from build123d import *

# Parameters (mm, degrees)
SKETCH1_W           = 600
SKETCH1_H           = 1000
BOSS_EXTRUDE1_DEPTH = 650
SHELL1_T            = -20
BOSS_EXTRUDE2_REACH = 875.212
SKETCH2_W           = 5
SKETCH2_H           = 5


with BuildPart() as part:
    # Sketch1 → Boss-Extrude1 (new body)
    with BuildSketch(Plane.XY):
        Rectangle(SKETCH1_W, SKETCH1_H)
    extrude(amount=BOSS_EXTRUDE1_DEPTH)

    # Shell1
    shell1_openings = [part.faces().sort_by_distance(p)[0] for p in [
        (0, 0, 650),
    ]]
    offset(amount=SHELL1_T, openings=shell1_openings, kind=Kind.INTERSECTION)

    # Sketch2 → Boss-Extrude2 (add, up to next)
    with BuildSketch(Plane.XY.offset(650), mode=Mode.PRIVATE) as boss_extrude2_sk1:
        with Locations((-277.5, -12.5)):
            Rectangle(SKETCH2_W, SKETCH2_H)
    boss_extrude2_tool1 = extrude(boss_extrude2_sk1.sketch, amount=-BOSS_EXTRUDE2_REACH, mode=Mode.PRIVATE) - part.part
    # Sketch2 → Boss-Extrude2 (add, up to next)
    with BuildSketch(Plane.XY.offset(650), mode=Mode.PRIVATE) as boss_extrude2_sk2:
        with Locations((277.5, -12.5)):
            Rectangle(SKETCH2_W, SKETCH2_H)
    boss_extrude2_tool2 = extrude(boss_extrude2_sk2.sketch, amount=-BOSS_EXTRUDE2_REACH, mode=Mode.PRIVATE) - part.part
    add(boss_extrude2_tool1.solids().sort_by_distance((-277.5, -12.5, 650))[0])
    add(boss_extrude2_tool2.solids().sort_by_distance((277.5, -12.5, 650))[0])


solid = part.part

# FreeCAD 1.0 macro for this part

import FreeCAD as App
import Part
import Sketcher

V = App.Vector


def faces_at(feature, points):
    """Names of the faces that lie closest to the given points."""
    faces = feature.Shape.Faces
    near = lambda p: min(range(len(faces)), key=lambda i: faces[i].distToShape(Part.Vertex(*p))[0])
    return sorted({f"Face{near(p) + 1}" for p in points})


def add_polygon(sketch, points):
    """Adds a closed chain of lines whose ends are joined by coincident constraints."""
    first, n = sketch.GeometryCount, len(points)
    for a, b in zip(points, points[1:] + points[:1]):
        sketch.addGeometry(Part.LineSegment(App.Vector(*a, 0), App.Vector(*b, 0)), False)
    for i in range(n):
        sketch.addConstraint(Sketcher.Constraint("Coincident", first + i, 2, first + (i + 1) % n, 1))

doc = App.newDocument("Part")
body = doc.addObject("PartDesign::Body", "Body")

# Sketch on XY plane
sketch1 = body.newObject("Sketcher::SketchObject", "Sketch")
sketch1.AttachmentSupport = (doc.getObject("XY_Plane"), [""])
sketch1.MapMode = "FlatFace"
add_polygon(sketch1, [(-300, 500), (-300, -500), (300, -500), (300, 500)])  # lines 0-3
sketch1.addConstraint([
    Sketcher.Constraint("Vertical", 0),
    Sketcher.Constraint("Horizontal", 1),
    Sketcher.Constraint("Vertical", 2),
    Sketcher.Constraint("Horizontal", 3),
    Sketcher.Constraint("Symmetric", 0, 2, 2, 2, -1, 1),
    Sketcher.Constraint("DistanceX", 1, 1, 1, 2, 600.0),
    Sketcher.Constraint("DistanceY", 0, 2, 0, 1, 1000.0),
])
pad1 = body.newObject("PartDesign::Pad", "Pad")
pad1.Profile = sketch1
pad1.Length = 650
doc.recompute()

thickness = body.newObject("PartDesign::Thickness", "Thickness")
thickness.Base = (pad1, faces_at(pad1, [(0, 0, 650)]))
thickness.Value = 20
thickness.Reversed = True
thickness.Join = "Intersection"

# Sketch on XY plane
sketch2 = body.newObject("Sketcher::SketchObject", "Sketch001")
sketch2.AttachmentSupport = (doc.getObject("XY_Plane"), [""])
sketch2.MapMode = "FlatFace"
sketch2.AttachmentOffset = App.Placement(V(0, 0, 650), App.Rotation())
add_polygon(sketch2, [(-280, -10), (-280, -15), (-275, -15), (-275, -10)])  # lines 0-3
sketch2.addConstraint([
    Sketcher.Constraint("Vertical", 0),
    Sketcher.Constraint("Horizontal", 1),
    Sketcher.Constraint("Vertical", 2),
    Sketcher.Constraint("Horizontal", 3),
    Sketcher.Constraint("Equal", 3, 0),
    Sketcher.Constraint("DistanceX", 1, 1, 1, 2, 5.0),
    Sketcher.Constraint("DistanceX", 0, 2, -1, 1, 280.0),
    Sketcher.Constraint("DistanceY", 0, 2, -1, 1, 15.0),
])
pad2 = body.newObject("PartDesign::Pad", "Pad001")
pad2.Profile = sketch2
pad2.Type = "UpToFirst"
pad2.Reversed = True

# Sketch on XY plane
sketch3 = body.newObject("Sketcher::SketchObject", "Sketch002")
sketch3.AttachmentSupport = (doc.getObject("XY_Plane"), [""])
sketch3.MapMode = "FlatFace"
sketch3.AttachmentOffset = App.Placement(V(0, 0, 650), App.Rotation())
add_polygon(sketch3, [(275, -10), (275, -15), (280, -15), (280, -10)])  # lines 0-3
sketch3.addConstraint([
    Sketcher.Constraint("Vertical", 0),
    Sketcher.Constraint("Horizontal", 1),
    Sketcher.Constraint("Vertical", 2),
    Sketcher.Constraint("Horizontal", 3),
    Sketcher.Constraint("Equal", 3, 0),
    Sketcher.Constraint("DistanceX", 1, 1, 1, 2, 5.0),
    Sketcher.Constraint("DistanceX", -1, 1, 0, 2, 275.0),
    Sketcher.Constraint("DistanceY", 0, 2, -1, 1, 15.0),
])
pad3 = body.newObject("PartDesign::Pad", "Pad002")
pad3.Profile = sketch3
pad3.Type = "UpToFirst"
pad3.Reversed = True

doc.recompute()
